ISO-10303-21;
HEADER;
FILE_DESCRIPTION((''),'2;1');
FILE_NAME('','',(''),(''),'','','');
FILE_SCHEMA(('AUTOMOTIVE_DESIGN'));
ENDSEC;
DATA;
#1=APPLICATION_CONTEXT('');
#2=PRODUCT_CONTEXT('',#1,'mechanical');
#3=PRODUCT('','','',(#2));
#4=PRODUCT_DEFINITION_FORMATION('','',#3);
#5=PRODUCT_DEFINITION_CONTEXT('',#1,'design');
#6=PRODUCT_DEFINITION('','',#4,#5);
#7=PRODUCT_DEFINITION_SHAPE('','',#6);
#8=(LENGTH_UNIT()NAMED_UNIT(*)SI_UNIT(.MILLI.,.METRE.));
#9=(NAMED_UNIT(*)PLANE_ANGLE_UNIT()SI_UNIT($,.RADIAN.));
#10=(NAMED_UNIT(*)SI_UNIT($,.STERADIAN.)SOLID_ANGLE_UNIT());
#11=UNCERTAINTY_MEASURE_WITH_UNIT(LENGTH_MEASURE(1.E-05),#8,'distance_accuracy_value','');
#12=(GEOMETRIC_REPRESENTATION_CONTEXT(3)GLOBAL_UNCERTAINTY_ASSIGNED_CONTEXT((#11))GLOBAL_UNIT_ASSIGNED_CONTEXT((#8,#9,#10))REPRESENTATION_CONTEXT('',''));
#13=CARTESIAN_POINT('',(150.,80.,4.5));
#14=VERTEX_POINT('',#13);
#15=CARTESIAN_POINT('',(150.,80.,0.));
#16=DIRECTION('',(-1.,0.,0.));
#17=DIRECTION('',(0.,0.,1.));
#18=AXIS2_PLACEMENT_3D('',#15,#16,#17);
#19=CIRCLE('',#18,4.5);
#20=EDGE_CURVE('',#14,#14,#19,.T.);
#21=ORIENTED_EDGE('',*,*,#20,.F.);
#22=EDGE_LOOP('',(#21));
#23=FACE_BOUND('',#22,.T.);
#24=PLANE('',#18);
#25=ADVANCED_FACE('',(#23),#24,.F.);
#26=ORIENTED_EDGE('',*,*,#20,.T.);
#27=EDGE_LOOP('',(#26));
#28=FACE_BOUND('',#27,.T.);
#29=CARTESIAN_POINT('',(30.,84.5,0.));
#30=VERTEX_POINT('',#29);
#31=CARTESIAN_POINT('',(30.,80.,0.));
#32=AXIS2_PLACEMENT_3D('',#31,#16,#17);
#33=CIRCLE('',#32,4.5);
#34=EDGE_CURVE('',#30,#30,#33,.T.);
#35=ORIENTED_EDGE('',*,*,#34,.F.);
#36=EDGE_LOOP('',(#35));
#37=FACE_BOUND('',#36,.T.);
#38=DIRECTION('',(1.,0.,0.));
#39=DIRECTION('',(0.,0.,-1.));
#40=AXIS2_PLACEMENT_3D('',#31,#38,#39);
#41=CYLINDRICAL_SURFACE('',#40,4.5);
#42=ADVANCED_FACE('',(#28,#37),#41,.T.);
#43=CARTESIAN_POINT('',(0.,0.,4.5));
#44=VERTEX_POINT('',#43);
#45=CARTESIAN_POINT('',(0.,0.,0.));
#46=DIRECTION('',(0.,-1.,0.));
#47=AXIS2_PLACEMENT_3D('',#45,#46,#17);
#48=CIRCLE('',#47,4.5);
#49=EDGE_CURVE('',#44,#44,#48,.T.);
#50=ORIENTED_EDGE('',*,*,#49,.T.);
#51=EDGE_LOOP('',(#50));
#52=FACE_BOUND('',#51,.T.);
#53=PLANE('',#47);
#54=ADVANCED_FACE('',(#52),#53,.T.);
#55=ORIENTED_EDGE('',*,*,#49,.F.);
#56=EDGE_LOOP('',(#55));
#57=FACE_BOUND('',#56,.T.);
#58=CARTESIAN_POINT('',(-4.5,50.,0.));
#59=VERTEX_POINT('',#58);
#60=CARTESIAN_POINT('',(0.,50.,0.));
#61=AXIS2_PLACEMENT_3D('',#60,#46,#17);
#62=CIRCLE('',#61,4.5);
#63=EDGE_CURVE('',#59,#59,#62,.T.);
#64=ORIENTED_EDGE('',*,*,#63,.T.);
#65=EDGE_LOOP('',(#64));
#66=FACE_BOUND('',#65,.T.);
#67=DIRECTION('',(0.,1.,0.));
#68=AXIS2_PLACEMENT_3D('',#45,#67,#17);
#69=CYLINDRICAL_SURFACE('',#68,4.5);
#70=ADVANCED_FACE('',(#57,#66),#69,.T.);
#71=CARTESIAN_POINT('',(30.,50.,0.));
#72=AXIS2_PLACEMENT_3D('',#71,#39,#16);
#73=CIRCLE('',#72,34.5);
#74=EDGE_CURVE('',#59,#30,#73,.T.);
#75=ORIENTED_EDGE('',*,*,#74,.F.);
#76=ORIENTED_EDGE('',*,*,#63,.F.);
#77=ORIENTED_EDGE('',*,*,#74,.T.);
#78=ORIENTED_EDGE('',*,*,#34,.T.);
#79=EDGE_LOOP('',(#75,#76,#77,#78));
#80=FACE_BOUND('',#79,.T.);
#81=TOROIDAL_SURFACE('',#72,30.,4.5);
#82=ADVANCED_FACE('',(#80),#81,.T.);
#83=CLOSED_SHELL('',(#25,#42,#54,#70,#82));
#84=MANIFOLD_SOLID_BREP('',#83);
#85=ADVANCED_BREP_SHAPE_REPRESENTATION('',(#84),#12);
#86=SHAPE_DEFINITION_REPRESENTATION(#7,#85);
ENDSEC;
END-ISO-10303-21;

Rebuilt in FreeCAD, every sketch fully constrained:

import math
import FreeCAD as App
import Part
import Sketcher
from FreeCAD import Vector

doc = App.newDocument("Part")
params = doc.addObject("Spreadsheet::Sheet", "Params")
for row, (alias, value) in enumerate([
    ("sketch1_diameter", "9 mm"),
    ("sketch2_radius", "30 mm"),
    ("sketch2_width", "120 mm"),
    ("sketch2_height", "50 mm"),
], start=1):
    params.set(f"A{row}", alias)
    params.set(f"B{row}", "=" + value)
    params.setAlias(f"B{row}", alias)

body = doc.addObject("PartDesign::Body", "Body")

sketch1 = doc.addObject("Sketcher::SketchObject", "Sketch")
body.addObject(sketch1)
sketch1.AttachmentSupport = (doc.XZ_Plane, [""])
sketch1.MapMode = "FlatFace"
sketch1.addGeometry(Part.Circle(Vector(0, 0, 0), Vector(0, 0, 1), 4.5), False)
sketch1.addConstraint([
    Sketcher.Constraint("Coincident", 0, 3, -1, 1),
    Sketcher.Constraint("Diameter", 0, 9.0),
])
sketch1.setExpression("Constraints[1]", "Params.sketch1_diameter")

sketch2 = doc.addObject("Sketcher::SketchObject", "Sketch001")
body.addObject(sketch2)
sketch2.AttachmentSupport = (doc.XY_Plane, [""])
sketch2.MapMode = "FlatFace"
sketch2.addGeometry([
    Part.LineSegment(Vector(0, 0, 0), Vector(0, 50, 0)),
    Part.ArcOfCircle(Part.Circle(Vector(30, 50, 0), Vector(0, 0, 1), 30), math.radians(90), math.radians(180)),
    Part.LineSegment(Vector(30, 80, 0), Vector(150, 80, 0)),
], False)
sketch2.addConstraint([
    Sketcher.Constraint("Tangent", 0, 2, 1, 2),
    Sketcher.Constraint("Tangent", 1, 1, 2, 1),
    Sketcher.Constraint("Vertical", 0),
    Sketcher.Constraint("Horizontal", 2),
    Sketcher.Constraint("Coincident", 0, 1, -1, 1),
    Sketcher.Constraint("Radius", 1, 30.0),
    Sketcher.Constraint("DistanceX", 2, 1, 2, 2, 120.0),
    Sketcher.Constraint("DistanceY", 0, 1, 0, 2, 50.0),
])
sketch2.setExpression("Constraints[5]", "Params.sketch2_radius")
sketch2.setExpression("Constraints[6]", "Params.sketch2_width")
sketch2.setExpression("Constraints[7]", "Params.sketch2_height")
doc.recompute()

additivepipe = doc.addObject("PartDesign::AdditivePipe", "AdditivePipe")
body.addObject(additivepipe)
additivepipe.Profile = sketch1
additivepipe.Spine = (sketch2, ["Edge1", "Edge2", "Edge3"])

doc.recompute()
